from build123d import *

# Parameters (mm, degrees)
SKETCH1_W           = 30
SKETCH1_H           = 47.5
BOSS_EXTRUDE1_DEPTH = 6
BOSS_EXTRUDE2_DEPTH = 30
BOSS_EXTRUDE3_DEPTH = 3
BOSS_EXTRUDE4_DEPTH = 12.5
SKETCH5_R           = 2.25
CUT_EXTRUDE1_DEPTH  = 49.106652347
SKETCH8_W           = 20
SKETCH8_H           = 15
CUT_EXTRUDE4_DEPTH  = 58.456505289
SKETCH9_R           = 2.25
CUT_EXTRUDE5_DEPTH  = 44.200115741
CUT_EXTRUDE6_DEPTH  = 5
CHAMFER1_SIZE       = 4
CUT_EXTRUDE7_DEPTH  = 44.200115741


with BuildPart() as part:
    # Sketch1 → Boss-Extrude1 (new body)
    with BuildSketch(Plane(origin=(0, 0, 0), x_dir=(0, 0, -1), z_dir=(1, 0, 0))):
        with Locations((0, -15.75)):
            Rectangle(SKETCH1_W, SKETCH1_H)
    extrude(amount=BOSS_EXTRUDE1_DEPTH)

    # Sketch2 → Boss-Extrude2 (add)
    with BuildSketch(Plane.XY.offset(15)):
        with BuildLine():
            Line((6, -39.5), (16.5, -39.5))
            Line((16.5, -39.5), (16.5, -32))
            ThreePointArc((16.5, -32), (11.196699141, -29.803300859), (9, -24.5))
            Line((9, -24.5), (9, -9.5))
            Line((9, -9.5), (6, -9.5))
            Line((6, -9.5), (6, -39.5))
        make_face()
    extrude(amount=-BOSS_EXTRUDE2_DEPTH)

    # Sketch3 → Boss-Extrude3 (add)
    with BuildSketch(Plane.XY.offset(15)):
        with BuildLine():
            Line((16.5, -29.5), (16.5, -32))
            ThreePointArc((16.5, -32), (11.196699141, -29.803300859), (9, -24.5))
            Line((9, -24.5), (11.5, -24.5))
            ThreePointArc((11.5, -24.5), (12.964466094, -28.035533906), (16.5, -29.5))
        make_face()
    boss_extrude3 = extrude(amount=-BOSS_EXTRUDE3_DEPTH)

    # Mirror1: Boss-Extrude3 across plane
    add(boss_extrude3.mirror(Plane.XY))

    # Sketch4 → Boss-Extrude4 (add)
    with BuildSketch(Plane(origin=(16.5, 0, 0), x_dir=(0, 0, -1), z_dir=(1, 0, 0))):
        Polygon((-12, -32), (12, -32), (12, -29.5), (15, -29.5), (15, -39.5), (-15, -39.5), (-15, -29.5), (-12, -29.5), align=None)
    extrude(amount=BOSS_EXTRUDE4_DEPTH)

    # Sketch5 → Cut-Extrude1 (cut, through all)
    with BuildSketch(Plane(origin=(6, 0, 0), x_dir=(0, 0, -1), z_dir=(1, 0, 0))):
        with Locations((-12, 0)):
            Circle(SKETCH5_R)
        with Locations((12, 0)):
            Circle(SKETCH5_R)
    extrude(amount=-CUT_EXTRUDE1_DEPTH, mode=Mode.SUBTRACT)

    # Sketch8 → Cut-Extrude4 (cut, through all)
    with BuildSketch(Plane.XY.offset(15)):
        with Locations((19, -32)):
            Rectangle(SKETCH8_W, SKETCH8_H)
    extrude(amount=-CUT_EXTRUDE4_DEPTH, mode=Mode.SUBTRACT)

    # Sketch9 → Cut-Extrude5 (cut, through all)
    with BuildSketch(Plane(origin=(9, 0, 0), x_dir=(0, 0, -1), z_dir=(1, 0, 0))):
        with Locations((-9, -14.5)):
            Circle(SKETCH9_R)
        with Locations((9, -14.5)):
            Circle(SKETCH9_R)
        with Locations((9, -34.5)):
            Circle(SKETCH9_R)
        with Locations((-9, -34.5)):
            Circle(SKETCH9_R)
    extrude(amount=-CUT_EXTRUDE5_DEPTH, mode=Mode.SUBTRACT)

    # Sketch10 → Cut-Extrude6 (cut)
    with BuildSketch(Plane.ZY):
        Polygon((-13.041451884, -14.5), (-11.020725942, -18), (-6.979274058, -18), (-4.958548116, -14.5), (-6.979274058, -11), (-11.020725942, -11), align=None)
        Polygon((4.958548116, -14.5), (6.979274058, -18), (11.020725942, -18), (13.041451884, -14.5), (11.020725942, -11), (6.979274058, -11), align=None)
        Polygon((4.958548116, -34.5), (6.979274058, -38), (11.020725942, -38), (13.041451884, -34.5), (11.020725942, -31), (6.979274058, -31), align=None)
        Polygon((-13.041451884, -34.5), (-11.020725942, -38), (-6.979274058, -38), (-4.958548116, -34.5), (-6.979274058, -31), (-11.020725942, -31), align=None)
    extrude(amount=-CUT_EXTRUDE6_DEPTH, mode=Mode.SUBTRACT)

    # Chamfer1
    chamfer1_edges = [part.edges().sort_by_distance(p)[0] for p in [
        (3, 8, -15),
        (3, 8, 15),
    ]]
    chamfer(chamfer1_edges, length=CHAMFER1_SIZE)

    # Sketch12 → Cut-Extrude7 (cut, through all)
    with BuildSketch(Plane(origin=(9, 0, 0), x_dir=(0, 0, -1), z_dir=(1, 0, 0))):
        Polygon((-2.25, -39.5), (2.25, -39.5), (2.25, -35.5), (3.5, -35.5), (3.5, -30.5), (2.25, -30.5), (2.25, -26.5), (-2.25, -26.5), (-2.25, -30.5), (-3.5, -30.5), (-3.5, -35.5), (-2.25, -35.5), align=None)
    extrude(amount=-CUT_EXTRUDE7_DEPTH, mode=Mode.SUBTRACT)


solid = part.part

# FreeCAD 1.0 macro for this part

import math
import FreeCAD as App
import Part
import Sketcher
from FreeCAD import Vector
Q = App.Units.Quantity


def edges_at(feature, points):
    """Names of the edges that pass closest to the given points."""
    edges = feature.Shape.Edges
    near = lambda p: min(range(len(edges)), key=lambda i: edges[i].distToShape(Part.Vertex(*p))[0])
    return sorted({f"Edge{near(p) + 1}" for p in points})

doc = App.newDocument("Part")
params = doc.addObject("Spreadsheet::Sheet", "Params")
for row, (alias, value) in enumerate([
    ("sketch1_height", "30 mm"),
    ("sketch1_width", "47.5 mm"),
    ("pad1_length", "6 mm"),
    ("sketch2_radius", "7.5 mm"),
    ("sketch2_width", "3 mm"),
    ("sketch2_height", "15 mm"),
    ("sketch2_height2", "30 mm"),
    ("pad2_length", "30 mm"),
    ("sketch3_radius", "5 mm"),
    ("sketch3_radius2", "7.5 mm"),
    ("pad3_length", "3 mm"),
    ("sketch4_width", "10 mm"),
    ("sketch4_height", "24 mm"),
    ("sketch4_height2", "3 mm"),
    ("sketch4_width2", "2.5 mm"),
    ("pad4_length", "12.5 mm"),
    ("sketch5_diameter", "4.5 mm"),
    ("sketch6_width", "20 mm"),
    ("sketch6_height", "15 mm"),
    ("sketch7_diameter", "4.5 mm"),
    ("pocket4_length", "5 mm"),
    ("chamfer_size", "4 mm"),
    ("sketch9_width", "4 mm"),
    ("sketch9_width2", "5 mm"),
    ("sketch9_height", "4.5 mm"),
], start=1):
    params.set(f"A{row}", alias)
    params.set(f"B{row}", "=" + value)
    params.setAlias(f"B{row}", alias)

body = doc.addObject("PartDesign::Body", "Body")

# Sketch on YZ plane
sketch1 = body.newObject("Sketcher::SketchObject", "Sketch")
sketch1.AttachmentSupport = (doc.getObject("YZ_Plane"), [""])
sketch1.MapMode = "FlatFace"
sketch1.addGeometry([
    Part.LineSegment(Vector(8, 15, 0), Vector(-40, 15, 0)),
    Part.LineSegment(Vector(-40, 15, 0), Vector(-40, -15, 0)),
    Part.LineSegment(Vector(-40, -15, 0), Vector(8, -15, 0)),
    Part.LineSegment(Vector(8, -15, 0), Vector(8, 15, 0)),
], False)
sketch1.addConstraint([
    Sketcher.Constraint("Coincident", 0, 2, 1, 1),
    Sketcher.Constraint("Coincident", 1, 2, 2, 1),
    Sketcher.Constraint("Coincident", 2, 2, 3, 1),
    Sketcher.Constraint("Coincident", 3, 2, 0, 1),
    Sketcher.Constraint("Horizontal", 0),
    Sketcher.Constraint("Vertical", 1),
    Sketcher.Constraint("Horizontal", 2),
    Sketcher.Constraint("Vertical", 3),
    Sketcher.Constraint("DistanceY", 1, 2, 1, 1, 30.0),
    Sketcher.Constraint("DistanceX", 0, 2, 0, 1, 47.5),
    Sketcher.Constraint("DistanceY", -1, 1, 0, 2, 15.0),
    Sketcher.Constraint("DistanceX", -1, 1, 2, 2, 8.0),
])
sketch1.setExpression("Constraints[8]", "Params.sketch1_height")
sketch1.setExpression("Constraints[9]", "Params.sketch1_width")
pad1 = body.newObject("PartDesign::Pad", "Pad")
pad1.Profile = sketch1
pad1.setExpression("Length", "Params.pad1_length")

# Sketch on XY plane
sketch2 = body.newObject("Sketcher::SketchObject", "Sketch001")
sketch2.AttachmentSupport = (doc.getObject("XY_Plane"), [""])
sketch2.MapMode = "FlatFace"
sketch2.AttachmentOffset = App.Placement(Vector(0, 0, 15), App.Rotation())
sketch2.addGeometry([
    Part.LineSegment(Vector(6, -39.5, 0), Vector(16.5, -39.5, 0)),  # 0
    Part.LineSegment(Vector(16.5, -39.5, 0), Vector(16.5, -32, 0)),  # 1
    Part.ArcOfCircle(Part.Circle(Vector(16.5, -24.5, 0), Vector(0, 0, 1), 7.5), math.radians(180), math.radians(270)),  # 2
    Part.LineSegment(Vector(9, -24.5, 0), Vector(9, -9.5, 0)),  # 3
    Part.LineSegment(Vector(9, -9.5, 0), Vector(6, -9.5, 0)),  # 4
    Part.LineSegment(Vector(6, -9.5, 0), Vector(6, -39.5, 0)),  # 5
], False)
sketch2.addConstraint([
    Sketcher.Constraint("Coincident", 0, 2, 1, 1),
    Sketcher.Constraint("Coincident", 1, 2, 2, 2),
    Sketcher.Constraint("Tangent", 2, 1, 3, 1),
    Sketcher.Constraint("Coincident", 3, 2, 4, 1),
    Sketcher.Constraint("Coincident", 4, 2, 5, 1),
    Sketcher.Constraint("Coincident", 5, 2, 0, 1),
    Sketcher.Constraint("Horizontal", 0),
    Sketcher.Constraint("Vertical", 1),
    Sketcher.Constraint("Vertical", 3),
    Sketcher.Constraint("Horizontal", 4),
    Sketcher.Constraint("Vertical", 5),
    Sketcher.Constraint("Vertical", 2, 3, 0, 2),
    Sketcher.Constraint("Radius", 2, 7.5),
    Sketcher.Constraint("DistanceX", 4, 2, 4, 1, 3.0),
    Sketcher.Constraint("DistanceY", 3, 1, 3, 2, 15.0),
    Sketcher.Constraint("DistanceY", 5, 2, 5, 1, 30.0),
    Sketcher.Constraint("DistanceY", 1, 2, -1, 1, 32.0),
    Sketcher.Constraint("DistanceX", -1, 1, 2, 1, 9.0),
])
sketch2.setExpression("Constraints[12]", "Params.sketch2_radius")
sketch2.setExpression("Constraints[13]", "Params.sketch2_width")
sketch2.setExpression("Constraints[14]", "Params.sketch2_height")
sketch2.setExpression("Constraints[15]", "Params.sketch2_height2")
pad2 = body.newObject("PartDesign::Pad", "Pad001")
pad2.Profile = sketch2
pad2.setExpression("Length", "Params.pad2_length")
pad2.Reversed = True

# Sketch on XY plane
sketch3 = body.newObject("Sketcher::SketchObject", "Sketch002")
sketch3.AttachmentSupport = (doc.getObject("XY_Plane"), [""])
sketch3.MapMode = "FlatFace"
sketch3.AttachmentOffset = App.Placement(Vector(0, 0, 15), App.Rotation())
sketch3.addGeometry([
    Part.LineSegment(Vector(16.5, -32, 0), Vector(16.5, -29.5, 0)),
    Part.ArcOfCircle(Part.Circle(Vector(16.5, -24.5, 0), Vector(0, 0, 1), 5), math.radians(180), math.radians(270)),
    Part.LineSegment(Vector(11.5, -24.5, 0), Vector(9, -24.5, 0)),
    Part.ArcOfCircle(Part.Circle(Vector(16.5, -24.5, 0), Vector(0, 0, 1), 7.5), math.radians(180), math.radians(270)),
], False)
sketch3.addConstraint([
    Sketcher.Constraint("Coincident", 0, 2, 1, 2),
    Sketcher.Constraint("Coincident", 1, 1, 2, 1),
    Sketcher.Constraint("Coincident", 2, 2, 3, 1),
    Sketcher.Constraint("Coincident", 3, 2, 0, 1),
    Sketcher.Constraint("Vertical", 0),
    Sketcher.Constraint("Horizontal", 2),
    Sketcher.Constraint("Coincident", 3, 3, 1, 3),
    Sketcher.Constraint("Horizontal", 3, 3, 1, 1),
    Sketcher.Constraint("Vertical", 3, 3, 0, 2),
    Sketcher.Constraint("Radius", 1, 5.0),
    Sketcher.Constraint("Radius", 3, 7.5),
    Sketcher.Constraint("DistanceX", -1, 1, 2, 2, 9.0),
    Sketcher.Constraint("DistanceY", 3, 2, -1, 1, 32.0),
])
sketch3.setExpression("Constraints[9]", "Params.sketch3_radius")
sketch3.setExpression("Constraints[10]", "Params.sketch3_radius2")
pad3 = body.newObject("PartDesign::Pad", "Pad002")
pad3.Profile = sketch3
pad3.setExpression("Length", "Params.pad3_length")
pad3.Reversed = True
doc.recompute()

mirrored = body.newObject("PartDesign::Mirrored", "Mirrored")
mirrored.Originals = [pad3]
mirrored.MirrorPlane = (doc.getObject("XY_Plane"), [""])
body.Tip = mirrored

# Sketch on YZ plane
sketch4 = body.newObject("Sketcher::SketchObject", "Sketch003")
sketch4.AttachmentSupport = (doc.getObject("YZ_Plane"), [""])
sketch4.MapMode = "FlatFace"
sketch4.AttachmentOffset = App.Placement(Vector(0, 0, 16.5), App.Rotation())
sketch4.addGeometry([
    Part.LineSegment(Vector(-32, -12, 0), Vector(-32, 12, 0)),  # 0
    Part.LineSegment(Vector(-32, 12, 0), Vector(-29.5, 12, 0)),  # 1
    Part.LineSegment(Vector(-29.5, 12, 0), Vector(-29.5, 15, 0)),  # 2
    Part.LineSegment(Vector(-29.5, 15, 0), Vector(-39.5, 15, 0)),  # 3
    Part.LineSegment(Vector(-39.5, 15, 0), Vector(-39.5, -15, 0)),  # 4
    Part.LineSegment(Vector(-39.5, -15, 0), Vector(-29.5, -15, 0)),  # 5
    Part.LineSegment(Vector(-29.5, -15, 0), Vector(-29.5, -12, 0)),  # 6
    Part.LineSegment(Vector(-29.5, -12, 0), Vector(-32, -12, 0)),  # 7
], False)
sketch4.addConstraint([
    Sketcher.Constraint("Coincident", 0, 2, 1, 1),
    Sketcher.Constraint("Coincident", 1, 2, 2, 1),
    Sketcher.Constraint("Coincident", 2, 2, 3, 1),
    Sketcher.Constraint("Coincident", 3, 2, 4, 1),
    Sketcher.Constraint("Coincident", 4, 2, 5, 1),
    Sketcher.Constraint("Coincident", 5, 2, 6, 1),
    Sketcher.Constraint("Coincident", 6, 2, 7, 1),
    Sketcher.Constraint("Coincident", 7, 2, 0, 1),
    Sketcher.Constraint("Vertical", 0),
    Sketcher.Constraint("Horizontal", 1),
    Sketcher.Constraint("Vertical", 2),
    Sketcher.Constraint("Horizontal", 3),
    Sketcher.Constraint("Vertical", 4),
    Sketcher.Constraint("Horizontal", 5),
    Sketcher.Constraint("Vertical", 6),
    Sketcher.Constraint("Horizontal", 7),
    Sketcher.Constraint("Symmetric", 2, 2, 5, 2, -1),
    Sketcher.Constraint("Equal", 2, 6),
    Sketcher.Constraint("DistanceX", 3, 2, 3, 1, 10.0),
    Sketcher.Constraint("DistanceY", 0, 1, 0, 2, 24.0),
    Sketcher.Constraint("DistanceY", 2, 1, 2, 2, 3.0),
    Sketcher.Constraint("DistanceX", 1, 1, 1, 2, 2.5),
    Sketcher.Constraint("DistanceX", 0, 2, -1, 1, 32.0),
])
sketch4.setExpression("Constraints[18]", "Params.sketch4_width")
sketch4.setExpression("Constraints[19]", "Params.sketch4_height")
sketch4.setExpression("Constraints[20]", "Params.sketch4_height2")
sketch4.setExpression("Constraints[21]", "Params.sketch4_width2")
pad4 = body.newObject("PartDesign::Pad", "Pad003")
pad4.Profile = sketch4
pad4.setExpression("Length", "Params.pad4_length")

# Sketch on YZ plane
sketch5 = body.newObject("Sketcher::SketchObject", "Sketch004")
sketch5.AttachmentSupport = (doc.getObject("YZ_Plane"), [""])
sketch5.MapMode = "FlatFace"
sketch5.AttachmentOffset = App.Placement(Vector(0, 0, 6), App.Rotation())
sketch5.addGeometry([
    Part.Circle(Vector(0, 12, 0), Vector(0, 0, 1), 2.2),
    Part.Circle(Vector(0, -12, 0), Vector(0, 0, 1), 2.2),
], False)
sketch5.addConstraint([
    Sketcher.Constraint("Equal", 0, 1),
    Sketcher.Constraint("Symmetric", 0, 3, 1, 3, -1, 1),
    Sketcher.Constraint("PointOnObject", 0, 3, -2),
    Sketcher.Constraint("Diameter", 0, 4.5),
    Sketcher.Constraint("DistanceY", -1, 1, 0, 3, 12.0),
])
sketch5.setExpression("Constraints[3]", "Params.sketch5_diameter")
pocket1 = body.newObject("PartDesign::Pocket", "Pocket")
pocket1.Profile = sketch5
pocket1.Type = "ThroughAll"

# Sketch on XY plane
sketch6 = body.newObject("Sketcher::SketchObject", "Sketch005")
sketch6.AttachmentSupport = (doc.getObject("XY_Plane"), [""])
sketch6.MapMode = "FlatFace"
sketch6.AttachmentOffset = App.Placement(Vector(0, 0, 15), App.Rotation())
sketch6.addGeometry([
    Part.LineSegment(Vector(9, -24, 0), Vector(9, -40, 0)),
    Part.LineSegment(Vector(9, -40, 0), Vector(29, -40, 0)),
    Part.LineSegment(Vector(29, -40, 0), Vector(29, -24, 0)),
    Part.LineSegment(Vector(29, -24, 0), Vector(9, -24, 0)),
], False)
sketch6.addConstraint([
    Sketcher.Constraint("Coincident", 0, 2, 1, 1),
    Sketcher.Constraint("Coincident", 1, 2, 2, 1),
    Sketcher.Constraint("Coincident", 2, 2, 3, 1),
    Sketcher.Constraint("Coincident", 3, 2, 0, 1),
    Sketcher.Constraint("Vertical", 0),
    Sketcher.Constraint("Horizontal", 1),
    Sketcher.Constraint("Vertical", 2),
    Sketcher.Constraint("Horizontal", 3),
    Sketcher.Constraint("DistanceX", 1, 1, 1, 2, 20.0),
    Sketcher.Constraint("DistanceY", 0, 2, 0, 1, 15.0),
    Sketcher.Constraint("DistanceX", -1, 1, 0, 2, 9.0),
    Sketcher.Constraint("DistanceY", 0, 2, -1, 1, 39.5),
])
sketch6.setExpression("Constraints[8]", "Params.sketch6_width")
sketch6.setExpression("Constraints[9]", "Params.sketch6_height")
pocket2 = body.newObject("PartDesign::Pocket", "Pocket001")
pocket2.Profile = sketch6
pocket2.Type = "ThroughAll"

# Sketch on YZ plane
sketch7 = body.newObject("Sketcher::SketchObject", "Sketch006")
sketch7.AttachmentSupport = (doc.getObject("YZ_Plane"), [""])
sketch7.MapMode = "FlatFace"
sketch7.AttachmentOffset = App.Placement(Vector(0, 0, 9), App.Rotation())
sketch7.addGeometry([
    Part.Circle(Vector(-14.5, 9, 0), Vector(0, 0, 1), 2.2),
    Part.Circle(Vector(-14.5, -9, 0), Vector(0, 0, 1), 2.2),
    Part.Circle(Vector(-34.5, -9, 0), Vector(0, 0, 1), 2.2),
    Part.Circle(Vector(-34.5, 9, 0), Vector(0, 0, 1), 2.2),
], False)
sketch7.addConstraint([
    Sketcher.Constraint("Equal", 0, 1),
    Sketcher.Constraint("Equal", 1, 2),
    Sketcher.Constraint("Equal", 2, 3),
    Sketcher.Constraint("Symmetric", 0, 3, 1, 3, -1),
    Sketcher.Constraint("Symmetric", 2, 3, 3, 3, -1),
    Sketcher.Constraint("Horizontal", 1, 3, 2, 3),
    Sketcher.Constraint("Diameter", 0, 4.5),
    Sketcher.Constraint("DistanceY", -1, 1, 0, 3, 9.0),
    Sketcher.Constraint("DistanceX", 2, 3, 1, 3, 20.0),
    Sketcher.Constraint("DistanceX", 0, 3, -1, 1, 14.5),
])
sketch7.setExpression("Constraints[6]", "Params.sketch7_diameter")
pocket3 = body.newObject("PartDesign::Pocket", "Pocket002")
pocket3.Profile = sketch7
pocket3.Type = "ThroughAll"

# Sketch on YZ plane
sketch8 = body.newObject("Sketcher::SketchObject", "Sketch007")
sketch8.AttachmentSupport = (doc.getObject("YZ_Plane"), [""])
sketch8.MapMode = "FlatFace"
sketch8.addGeometry([
    Part.LineSegment(Vector(-14.5, -13, 0), Vector(-18, -11, 0)),  # 0
    Part.LineSegment(Vector(-18, -11, 0), Vector(-18, -7, 0)),  # 1
    Part.LineSegment(Vector(-18, -7, 0), Vector(-14.5, -5, 0)),  # 2
    Part.LineSegment(Vector(-14.5, -5, 0), Vector(-11, -7, 0)),  # 3
    Part.LineSegment(Vector(-11, -7, 0), Vector(-11, -11, 0)),  # 4
    Part.LineSegment(Vector(-11, -11, 0), Vector(-14.5, -13, 0)),  # 5
    Part.LineSegment(Vector(-14.5, 5, 0), Vector(-18, 7, 0)),  # 6
    Part.LineSegment(Vector(-18, 7, 0), Vector(-18, 11, 0)),  # 7
    Part.LineSegment(Vector(-18, 11, 0), Vector(-14.5, 13, 0)),  # 8
    Part.LineSegment(Vector(-14.5, 13, 0), Vector(-11, 11, 0)),  # 9
    Part.LineSegment(Vector(-11, 11, 0), Vector(-11, 7, 0)),  # 10
    Part.LineSegment(Vector(-11, 7, 0), Vector(-14.5, 5, 0)),  # 11
    Part.LineSegment(Vector(-34.5, 5, 0), Vector(-38, 7, 0)),  # 12
    Part.LineSegment(Vector(-38, 7, 0), Vector(-38, 11, 0)),  # 13
    Part.LineSegment(Vector(-38, 11, 0), Vector(-34.5, 13, 0)),  # 14
    Part.LineSegment(Vector(-34.5, 13, 0), Vector(-31, 11, 0)),  # 15
    Part.LineSegment(Vector(-31, 11, 0), Vector(-31, 7, 0)),  # 16
    Part.LineSegment(Vector(-31, 7, 0), Vector(-34.5, 5, 0)),  # 17
    Part.LineSegment(Vector(-34.5, -13, 0), Vector(-38, -11, 0)),  # 18
    Part.LineSegment(Vector(-38, -11, 0), Vector(-38, -7, 0)),  # 19
    Part.LineSegment(Vector(-38, -7, 0), Vector(-34.5, -5, 0)),  # 20
    Part.LineSegment(Vector(-34.5, -5, 0), Vector(-31, -7, 0)),  # 21
    Part.LineSegment(Vector(-31, -7, 0), Vector(-31, -11, 0)),  # 22
    Part.LineSegment(Vector(-31, -11, 0), Vector(-34.5, -13, 0)),  # 23
], False)
sketch8.addConstraint([
    Sketcher.Constraint("Coincident", 0, 2, 1, 1),
    Sketcher.Constraint("Coincident", 1, 2, 2, 1),
    Sketcher.Constraint("Coincident", 2, 2, 3, 1),
    Sketcher.Constraint("Coincident", 3, 2, 4, 1),
    Sketcher.Constraint("Coincident", 4, 2, 5, 1),
    Sketcher.Constraint("Coincident", 5, 2, 0, 1),
    Sketcher.Constraint("Coincident", 6, 2, 7, 1),
    Sketcher.Constraint("Coincident", 7, 2, 8, 1),
    Sketcher.Constraint("Coincident", 8, 2, 9, 1),
    Sketcher.Constraint("Coincident", 9, 2, 10, 1),
    Sketcher.Constraint("Coincident", 10, 2, 11, 1),
    Sketcher.Constraint("Coincident", 11, 2, 6, 1),
    Sketcher.Constraint("Coincident", 12, 2, 13, 1),
    Sketcher.Constraint("Coincident", 13, 2, 14, 1),
    Sketcher.Constraint("Coincident", 14, 2, 15, 1),
    Sketcher.Constraint("Coincident", 15, 2, 16, 1),
    Sketcher.Constraint("Coincident", 16, 2, 17, 1),
    Sketcher.Constraint("Coincident", 17, 2, 12, 1),
    Sketcher.Constraint("Coincident", 18, 2, 19, 1),
    Sketcher.Constraint("Coincident", 19, 2, 20, 1),
    Sketcher.Constraint("Coincident", 20, 2, 21, 1),
    Sketcher.Constraint("Coincident", 21, 2, 22, 1),
    Sketcher.Constraint("Coincident", 22, 2, 23, 1),
    Sketcher.Constraint("Coincident", 23, 2, 18, 1),
    Sketcher.Constraint("Vertical", 1),
    Sketcher.Constraint("Vertical", 4),
    Sketcher.Constraint("Vertical", 7),
    Sketcher.Constraint("Vertical", 10),
    Sketcher.Constraint("Vertical", 13),
    Sketcher.Constraint("Vertical", 16),
    Sketcher.Constraint("Vertical", 19),
    Sketcher.Constraint("Vertical", 22),
    Sketcher.Constraint("Symmetric", 1, 2, 6, 2, -1),
    Sketcher.Constraint("Symmetric", 5, 2, 8, 2, -1),
    Sketcher.Constraint("Symmetric", 4, 2, 9, 2, -1),
    Sketcher.Constraint("Symmetric", 2, 2, 11, 2, -1),
    Sketcher.Constraint("Symmetric", 13, 2, 18, 2, -1),
    Sketcher.Constraint("Symmetric", 17, 2, 20, 2, -1),
    Sketcher.Constraint("Symmetric", 16, 2, 21, 2, -1),
    Sketcher.Constraint("Symmetric", 14, 2, 23, 2, -1),
    Sketcher.Constraint("Parallel", 0, 3),
    Sketcher.Constraint("Parallel", 2, 5),
    Sketcher.Constraint("Parallel", 3, 6),
    Sketcher.Constraint("Parallel", 5, 8),
    Sketcher.Constraint("Parallel", 8, 11),
    Sketcher.Constraint("Parallel", 9, 12),
    Sketcher.Constraint("Parallel", 11, 14),
    Sketcher.Constraint("Parallel", 12, 15),
    Sketcher.Constraint("Parallel", 14, 17),
    Sketcher.Constraint("Parallel", 17, 20),
    Sketcher.Constraint("Parallel", 20, 23),
    Sketcher.Constraint("Horizontal", 1, 2, 3, 2),
    Sketcher.Constraint("Horizontal", 0, 2, 4, 2),
    Sketcher.Constraint("Horizontal", 10, 2, 12, 2),
    Sketcher.Constraint("Horizontal", 9, 2, 13, 2),
    Sketcher.Constraint("Horizontal", 8, 2, 14, 2),
    Sketcher.Constraint("Horizontal", 13, 2, 15, 2),
    Sketcher.Constraint("Horizontal", 12, 2, 16, 2),
    Sketcher.Constraint("Angle", 0, Q("150 deg")),
    Sketcher.Constraint("DistanceX", 0, 2, -1, 1, 18.0),
    Sketcher.Constraint("DistanceX", 3, 2, -1, 1, 11.0),
    Sketcher.Constraint("DistanceX", 12, 2, -1, 1, 38.0),
    Sketcher.Constraint("DistanceY", 0, 2, 6, 2, 18.0),
    Sketcher.Constraint("DistanceY", 1, 1, 1, 2, 4.041452),
])
pocket4 = body.newObject("PartDesign::Pocket", "Pocket003")
pocket4.Profile = sketch8
pocket4.setExpression("Length", "Params.pocket4_length")
pocket4.Reversed = True
doc.recompute()

chamfer = body.newObject("PartDesign::Chamfer", "Chamfer")
chamfer.Base = (pocket4, edges_at(pocket4, [(3, 8, -15), (3, 8, 15)]))
chamfer.setExpression("Size", "Params.chamfer_size")

# Sketch on YZ plane
sketch9 = body.newObject("Sketcher::SketchObject", "Sketch008")
sketch9.AttachmentSupport = (doc.getObject("YZ_Plane"), [""])
sketch9.MapMode = "FlatFace"
sketch9.AttachmentOffset = App.Placement(Vector(0, 0, 9), App.Rotation())
sketch9.addGeometry([
    Part.LineSegment(Vector(-39.5, 2.2, 0), Vector(-39.5, -2.2, 0)),  # 0
    Part.LineSegment(Vector(-39.5, -2.2, 0), Vector(-35.5, -2.2, 0)),  # 1
    Part.LineSegment(Vector(-35.5, -2.2, 0), Vector(-35.5, -3.5, 0)),  # 2
    Part.LineSegment(Vector(-35.5, -3.5, 0), Vector(-30.5, -3.5, 0)),  # 3
    Part.LineSegment(Vector(-30.5, -3.5, 0), Vector(-30.5, -2.2, 0)),  # 4
    Part.LineSegment(Vector(-30.5, -2.2, 0), Vector(-26.5, -2.2, 0)),  # 5
    Part.LineSegment(Vector(-26.5, -2.2, 0), Vector(-26.5, 2.2, 0)),  # 6
    Part.LineSegment(Vector(-26.5, 2.2, 0), Vector(-30.5, 2.2, 0)),  # 7
    Part.LineSegment(Vector(-30.5, 2.2, 0), Vector(-30.5, 3.5, 0)),  # 8
    Part.LineSegment(Vector(-30.5, 3.5, 0), Vector(-35.5, 3.5, 0)),  # 9
    Part.LineSegment(Vector(-35.5, 3.5, 0), Vector(-35.5, 2.2, 0)),  # 10
    Part.LineSegment(Vector(-35.5, 2.2, 0), Vector(-39.5, 2.2, 0)),  # 11
], False)
sketch9.addConstraint([
    Sketcher.Constraint("Coincident", 0, 2, 1, 1),
    Sketcher.Constraint("Coincident", 1, 2, 2, 1),
    Sketcher.Constraint("Coincident", 2, 2, 3, 1),
    Sketcher.Constraint("Coincident", 3, 2, 4, 1),
    Sketcher.Constraint("Coincident", 4, 2, 5, 1),
    Sketcher.Constraint("Coincident", 5, 2, 6, 1),
    Sketcher.Constraint("Coincident", 6, 2, 7, 1),
    Sketcher.Constraint("Coincident", 7, 2, 8, 1),
    Sketcher.Constraint("Coincident", 8, 2, 9, 1),
    Sketcher.Constraint("Coincident", 9, 2, 10, 1),
    Sketcher.Constraint("Coincident", 10, 2, 11, 1),
    Sketcher.Constraint("Coincident", 11, 2, 0, 1),
    Sketcher.Constraint("Vertical", 0),
    Sketcher.Constraint("Horizontal", 1),
    Sketcher.Constraint("Vertical", 2),
    Sketcher.Constraint("Horizontal", 3),
    Sketcher.Constraint("Vertical", 4),
    Sketcher.Constraint("Horizontal", 5),
    Sketcher.Constraint("Vertical", 6),
    Sketcher.Constraint("Horizontal", 7),
    Sketcher.Constraint("Vertical", 8),
    Sketcher.Constraint("Horizontal", 9),
    Sketcher.Constraint("Vertical", 10),
    Sketcher.Constraint("Horizontal", 11),
    Sketcher.Constraint("Symmetric", 4, 2, 7, 2, -1),
    Sketcher.Constraint("Symmetric", 2, 2, 9, 2, -1),
    Sketcher.Constraint("Horizontal", 1, 2, 4, 2),
    Sketcher.Constraint("Horizontal", 7, 2, 10, 2),
    Sketcher.Constraint("Equal", 1, 5),
    Sketcher.Constraint("DistanceX", 1, 1, 1, 2, 4.0),
    Sketcher.Constraint("DistanceX", 3, 1, 3, 2, 5.0),
    Sketcher.Constraint("DistanceY", 0, 2, 0, 1, 4.5),
    Sketcher.Constraint("DistanceY", 3, 2, 8, 2, 7.0),
    Sketcher.Constraint("DistanceX", 0, 2, -1, 1, 39.5),
])
sketch9.setExpression("Constraints[29]", "Params.sketch9_width")
sketch9.setExpression("Constraints[30]", "Params.sketch9_width2")
sketch9.setExpression("Constraints[31]", "Params.sketch9_height")
pocket5 = body.newObject("PartDesign::Pocket", "Pocket004")
pocket5.Profile = sketch9
pocket5.Type = "ThroughAll"

doc.recompute()
